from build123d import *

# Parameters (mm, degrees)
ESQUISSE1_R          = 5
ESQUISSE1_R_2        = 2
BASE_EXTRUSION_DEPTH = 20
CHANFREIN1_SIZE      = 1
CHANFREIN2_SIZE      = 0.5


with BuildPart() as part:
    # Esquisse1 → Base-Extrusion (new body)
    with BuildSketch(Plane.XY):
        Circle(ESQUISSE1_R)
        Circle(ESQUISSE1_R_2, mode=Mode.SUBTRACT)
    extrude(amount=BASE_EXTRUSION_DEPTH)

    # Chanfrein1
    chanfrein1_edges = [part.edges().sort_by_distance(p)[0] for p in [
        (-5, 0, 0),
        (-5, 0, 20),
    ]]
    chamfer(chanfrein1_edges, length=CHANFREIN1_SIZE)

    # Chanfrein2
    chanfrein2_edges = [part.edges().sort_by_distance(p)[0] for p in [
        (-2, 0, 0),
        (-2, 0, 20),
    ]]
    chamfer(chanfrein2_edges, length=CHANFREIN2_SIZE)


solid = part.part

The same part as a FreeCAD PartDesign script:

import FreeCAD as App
import Part
import Sketcher


def edges_at(feature, points):
    """Names of the edges that pass closest to the given points."""
    edges = feature.Shape.Edges
    near = lambda p: min(range(len(edges)), key=lambda i: edges[i].distToShape(Part.Vertex(*p))[0])
    return sorted({f"Edge{near(p) + 1}" for p in points})

doc = App.newDocument("Part")
params = doc.addObject("Spreadsheet::Sheet", "Params")
for row, (alias, value) in enumerate([
    ("sketch1_diameter", "10 mm"),
    ("sketch1_diameter2", "4 mm"),
    ("pad1_length", "20 mm"),
    ("chamfer_size", "1 mm"),
    ("chamfer2_size", "0.5 mm"),
], start=1):
    params.set(f"A{row}", alias)
    params.set(f"B{row}", "=" + value)
    params.setAlias(f"B{row}", alias)

body = doc.addObject("PartDesign::Body", "Body")

# Sketch on XY plane
sketch1 = body.newObject("Sketcher::SketchObject", "Sketch")
sketch1.AttachmentSupport = (doc.getObject("XY_Plane"), [""])
sketch1.MapMode = "FlatFace"
sketch1.addGeometry([
    Part.Circle(App.Vector(0, 0, 0), App.Vector(0, 0, 1), 5),
    Part.Circle(App.Vector(0, 0, 0), App.Vector(0, 0, 1), 2),
], False)
sketch1.addConstraint([
    Sketcher.Constraint("Coincident", 0, 3, -1, 1),
    Sketcher.Constraint("Coincident", 1, 3, -1, 1),
    Sketcher.Constraint("Diameter", 0, 10.0),
    Sketcher.Constraint("Diameter", 1, 4.0),
])
sketch1.setExpression("Constraints[2]", "Params.sketch1_diameter")
sketch1.setExpression("Constraints[3]", "Params.sketch1_diameter2")
pad1 = body.newObject("PartDesign::Pad", "Pad")
pad1.Profile = sketch1
pad1.setExpression("Length", "Params.pad1_length")
doc.recompute()

chamfer = body.newObject("PartDesign::Chamfer", "Chamfer")
chamfer.Base = (pad1, edges_at(pad1, [(-5, 0, 0), (-5, 0, 20)]))
chamfer.setExpression("Size", "Params.chamfer_size")
doc.recompute()

chamfer2 = body.newObject("PartDesign::Chamfer", "Chamfer001")
chamfer2.Base = (chamfer, edges_at(chamfer, [(-2, 0, 0), (-2, 0, 20)]))
chamfer2.setExpression("Size", "Params.chamfer2_size")

doc.recompute()
